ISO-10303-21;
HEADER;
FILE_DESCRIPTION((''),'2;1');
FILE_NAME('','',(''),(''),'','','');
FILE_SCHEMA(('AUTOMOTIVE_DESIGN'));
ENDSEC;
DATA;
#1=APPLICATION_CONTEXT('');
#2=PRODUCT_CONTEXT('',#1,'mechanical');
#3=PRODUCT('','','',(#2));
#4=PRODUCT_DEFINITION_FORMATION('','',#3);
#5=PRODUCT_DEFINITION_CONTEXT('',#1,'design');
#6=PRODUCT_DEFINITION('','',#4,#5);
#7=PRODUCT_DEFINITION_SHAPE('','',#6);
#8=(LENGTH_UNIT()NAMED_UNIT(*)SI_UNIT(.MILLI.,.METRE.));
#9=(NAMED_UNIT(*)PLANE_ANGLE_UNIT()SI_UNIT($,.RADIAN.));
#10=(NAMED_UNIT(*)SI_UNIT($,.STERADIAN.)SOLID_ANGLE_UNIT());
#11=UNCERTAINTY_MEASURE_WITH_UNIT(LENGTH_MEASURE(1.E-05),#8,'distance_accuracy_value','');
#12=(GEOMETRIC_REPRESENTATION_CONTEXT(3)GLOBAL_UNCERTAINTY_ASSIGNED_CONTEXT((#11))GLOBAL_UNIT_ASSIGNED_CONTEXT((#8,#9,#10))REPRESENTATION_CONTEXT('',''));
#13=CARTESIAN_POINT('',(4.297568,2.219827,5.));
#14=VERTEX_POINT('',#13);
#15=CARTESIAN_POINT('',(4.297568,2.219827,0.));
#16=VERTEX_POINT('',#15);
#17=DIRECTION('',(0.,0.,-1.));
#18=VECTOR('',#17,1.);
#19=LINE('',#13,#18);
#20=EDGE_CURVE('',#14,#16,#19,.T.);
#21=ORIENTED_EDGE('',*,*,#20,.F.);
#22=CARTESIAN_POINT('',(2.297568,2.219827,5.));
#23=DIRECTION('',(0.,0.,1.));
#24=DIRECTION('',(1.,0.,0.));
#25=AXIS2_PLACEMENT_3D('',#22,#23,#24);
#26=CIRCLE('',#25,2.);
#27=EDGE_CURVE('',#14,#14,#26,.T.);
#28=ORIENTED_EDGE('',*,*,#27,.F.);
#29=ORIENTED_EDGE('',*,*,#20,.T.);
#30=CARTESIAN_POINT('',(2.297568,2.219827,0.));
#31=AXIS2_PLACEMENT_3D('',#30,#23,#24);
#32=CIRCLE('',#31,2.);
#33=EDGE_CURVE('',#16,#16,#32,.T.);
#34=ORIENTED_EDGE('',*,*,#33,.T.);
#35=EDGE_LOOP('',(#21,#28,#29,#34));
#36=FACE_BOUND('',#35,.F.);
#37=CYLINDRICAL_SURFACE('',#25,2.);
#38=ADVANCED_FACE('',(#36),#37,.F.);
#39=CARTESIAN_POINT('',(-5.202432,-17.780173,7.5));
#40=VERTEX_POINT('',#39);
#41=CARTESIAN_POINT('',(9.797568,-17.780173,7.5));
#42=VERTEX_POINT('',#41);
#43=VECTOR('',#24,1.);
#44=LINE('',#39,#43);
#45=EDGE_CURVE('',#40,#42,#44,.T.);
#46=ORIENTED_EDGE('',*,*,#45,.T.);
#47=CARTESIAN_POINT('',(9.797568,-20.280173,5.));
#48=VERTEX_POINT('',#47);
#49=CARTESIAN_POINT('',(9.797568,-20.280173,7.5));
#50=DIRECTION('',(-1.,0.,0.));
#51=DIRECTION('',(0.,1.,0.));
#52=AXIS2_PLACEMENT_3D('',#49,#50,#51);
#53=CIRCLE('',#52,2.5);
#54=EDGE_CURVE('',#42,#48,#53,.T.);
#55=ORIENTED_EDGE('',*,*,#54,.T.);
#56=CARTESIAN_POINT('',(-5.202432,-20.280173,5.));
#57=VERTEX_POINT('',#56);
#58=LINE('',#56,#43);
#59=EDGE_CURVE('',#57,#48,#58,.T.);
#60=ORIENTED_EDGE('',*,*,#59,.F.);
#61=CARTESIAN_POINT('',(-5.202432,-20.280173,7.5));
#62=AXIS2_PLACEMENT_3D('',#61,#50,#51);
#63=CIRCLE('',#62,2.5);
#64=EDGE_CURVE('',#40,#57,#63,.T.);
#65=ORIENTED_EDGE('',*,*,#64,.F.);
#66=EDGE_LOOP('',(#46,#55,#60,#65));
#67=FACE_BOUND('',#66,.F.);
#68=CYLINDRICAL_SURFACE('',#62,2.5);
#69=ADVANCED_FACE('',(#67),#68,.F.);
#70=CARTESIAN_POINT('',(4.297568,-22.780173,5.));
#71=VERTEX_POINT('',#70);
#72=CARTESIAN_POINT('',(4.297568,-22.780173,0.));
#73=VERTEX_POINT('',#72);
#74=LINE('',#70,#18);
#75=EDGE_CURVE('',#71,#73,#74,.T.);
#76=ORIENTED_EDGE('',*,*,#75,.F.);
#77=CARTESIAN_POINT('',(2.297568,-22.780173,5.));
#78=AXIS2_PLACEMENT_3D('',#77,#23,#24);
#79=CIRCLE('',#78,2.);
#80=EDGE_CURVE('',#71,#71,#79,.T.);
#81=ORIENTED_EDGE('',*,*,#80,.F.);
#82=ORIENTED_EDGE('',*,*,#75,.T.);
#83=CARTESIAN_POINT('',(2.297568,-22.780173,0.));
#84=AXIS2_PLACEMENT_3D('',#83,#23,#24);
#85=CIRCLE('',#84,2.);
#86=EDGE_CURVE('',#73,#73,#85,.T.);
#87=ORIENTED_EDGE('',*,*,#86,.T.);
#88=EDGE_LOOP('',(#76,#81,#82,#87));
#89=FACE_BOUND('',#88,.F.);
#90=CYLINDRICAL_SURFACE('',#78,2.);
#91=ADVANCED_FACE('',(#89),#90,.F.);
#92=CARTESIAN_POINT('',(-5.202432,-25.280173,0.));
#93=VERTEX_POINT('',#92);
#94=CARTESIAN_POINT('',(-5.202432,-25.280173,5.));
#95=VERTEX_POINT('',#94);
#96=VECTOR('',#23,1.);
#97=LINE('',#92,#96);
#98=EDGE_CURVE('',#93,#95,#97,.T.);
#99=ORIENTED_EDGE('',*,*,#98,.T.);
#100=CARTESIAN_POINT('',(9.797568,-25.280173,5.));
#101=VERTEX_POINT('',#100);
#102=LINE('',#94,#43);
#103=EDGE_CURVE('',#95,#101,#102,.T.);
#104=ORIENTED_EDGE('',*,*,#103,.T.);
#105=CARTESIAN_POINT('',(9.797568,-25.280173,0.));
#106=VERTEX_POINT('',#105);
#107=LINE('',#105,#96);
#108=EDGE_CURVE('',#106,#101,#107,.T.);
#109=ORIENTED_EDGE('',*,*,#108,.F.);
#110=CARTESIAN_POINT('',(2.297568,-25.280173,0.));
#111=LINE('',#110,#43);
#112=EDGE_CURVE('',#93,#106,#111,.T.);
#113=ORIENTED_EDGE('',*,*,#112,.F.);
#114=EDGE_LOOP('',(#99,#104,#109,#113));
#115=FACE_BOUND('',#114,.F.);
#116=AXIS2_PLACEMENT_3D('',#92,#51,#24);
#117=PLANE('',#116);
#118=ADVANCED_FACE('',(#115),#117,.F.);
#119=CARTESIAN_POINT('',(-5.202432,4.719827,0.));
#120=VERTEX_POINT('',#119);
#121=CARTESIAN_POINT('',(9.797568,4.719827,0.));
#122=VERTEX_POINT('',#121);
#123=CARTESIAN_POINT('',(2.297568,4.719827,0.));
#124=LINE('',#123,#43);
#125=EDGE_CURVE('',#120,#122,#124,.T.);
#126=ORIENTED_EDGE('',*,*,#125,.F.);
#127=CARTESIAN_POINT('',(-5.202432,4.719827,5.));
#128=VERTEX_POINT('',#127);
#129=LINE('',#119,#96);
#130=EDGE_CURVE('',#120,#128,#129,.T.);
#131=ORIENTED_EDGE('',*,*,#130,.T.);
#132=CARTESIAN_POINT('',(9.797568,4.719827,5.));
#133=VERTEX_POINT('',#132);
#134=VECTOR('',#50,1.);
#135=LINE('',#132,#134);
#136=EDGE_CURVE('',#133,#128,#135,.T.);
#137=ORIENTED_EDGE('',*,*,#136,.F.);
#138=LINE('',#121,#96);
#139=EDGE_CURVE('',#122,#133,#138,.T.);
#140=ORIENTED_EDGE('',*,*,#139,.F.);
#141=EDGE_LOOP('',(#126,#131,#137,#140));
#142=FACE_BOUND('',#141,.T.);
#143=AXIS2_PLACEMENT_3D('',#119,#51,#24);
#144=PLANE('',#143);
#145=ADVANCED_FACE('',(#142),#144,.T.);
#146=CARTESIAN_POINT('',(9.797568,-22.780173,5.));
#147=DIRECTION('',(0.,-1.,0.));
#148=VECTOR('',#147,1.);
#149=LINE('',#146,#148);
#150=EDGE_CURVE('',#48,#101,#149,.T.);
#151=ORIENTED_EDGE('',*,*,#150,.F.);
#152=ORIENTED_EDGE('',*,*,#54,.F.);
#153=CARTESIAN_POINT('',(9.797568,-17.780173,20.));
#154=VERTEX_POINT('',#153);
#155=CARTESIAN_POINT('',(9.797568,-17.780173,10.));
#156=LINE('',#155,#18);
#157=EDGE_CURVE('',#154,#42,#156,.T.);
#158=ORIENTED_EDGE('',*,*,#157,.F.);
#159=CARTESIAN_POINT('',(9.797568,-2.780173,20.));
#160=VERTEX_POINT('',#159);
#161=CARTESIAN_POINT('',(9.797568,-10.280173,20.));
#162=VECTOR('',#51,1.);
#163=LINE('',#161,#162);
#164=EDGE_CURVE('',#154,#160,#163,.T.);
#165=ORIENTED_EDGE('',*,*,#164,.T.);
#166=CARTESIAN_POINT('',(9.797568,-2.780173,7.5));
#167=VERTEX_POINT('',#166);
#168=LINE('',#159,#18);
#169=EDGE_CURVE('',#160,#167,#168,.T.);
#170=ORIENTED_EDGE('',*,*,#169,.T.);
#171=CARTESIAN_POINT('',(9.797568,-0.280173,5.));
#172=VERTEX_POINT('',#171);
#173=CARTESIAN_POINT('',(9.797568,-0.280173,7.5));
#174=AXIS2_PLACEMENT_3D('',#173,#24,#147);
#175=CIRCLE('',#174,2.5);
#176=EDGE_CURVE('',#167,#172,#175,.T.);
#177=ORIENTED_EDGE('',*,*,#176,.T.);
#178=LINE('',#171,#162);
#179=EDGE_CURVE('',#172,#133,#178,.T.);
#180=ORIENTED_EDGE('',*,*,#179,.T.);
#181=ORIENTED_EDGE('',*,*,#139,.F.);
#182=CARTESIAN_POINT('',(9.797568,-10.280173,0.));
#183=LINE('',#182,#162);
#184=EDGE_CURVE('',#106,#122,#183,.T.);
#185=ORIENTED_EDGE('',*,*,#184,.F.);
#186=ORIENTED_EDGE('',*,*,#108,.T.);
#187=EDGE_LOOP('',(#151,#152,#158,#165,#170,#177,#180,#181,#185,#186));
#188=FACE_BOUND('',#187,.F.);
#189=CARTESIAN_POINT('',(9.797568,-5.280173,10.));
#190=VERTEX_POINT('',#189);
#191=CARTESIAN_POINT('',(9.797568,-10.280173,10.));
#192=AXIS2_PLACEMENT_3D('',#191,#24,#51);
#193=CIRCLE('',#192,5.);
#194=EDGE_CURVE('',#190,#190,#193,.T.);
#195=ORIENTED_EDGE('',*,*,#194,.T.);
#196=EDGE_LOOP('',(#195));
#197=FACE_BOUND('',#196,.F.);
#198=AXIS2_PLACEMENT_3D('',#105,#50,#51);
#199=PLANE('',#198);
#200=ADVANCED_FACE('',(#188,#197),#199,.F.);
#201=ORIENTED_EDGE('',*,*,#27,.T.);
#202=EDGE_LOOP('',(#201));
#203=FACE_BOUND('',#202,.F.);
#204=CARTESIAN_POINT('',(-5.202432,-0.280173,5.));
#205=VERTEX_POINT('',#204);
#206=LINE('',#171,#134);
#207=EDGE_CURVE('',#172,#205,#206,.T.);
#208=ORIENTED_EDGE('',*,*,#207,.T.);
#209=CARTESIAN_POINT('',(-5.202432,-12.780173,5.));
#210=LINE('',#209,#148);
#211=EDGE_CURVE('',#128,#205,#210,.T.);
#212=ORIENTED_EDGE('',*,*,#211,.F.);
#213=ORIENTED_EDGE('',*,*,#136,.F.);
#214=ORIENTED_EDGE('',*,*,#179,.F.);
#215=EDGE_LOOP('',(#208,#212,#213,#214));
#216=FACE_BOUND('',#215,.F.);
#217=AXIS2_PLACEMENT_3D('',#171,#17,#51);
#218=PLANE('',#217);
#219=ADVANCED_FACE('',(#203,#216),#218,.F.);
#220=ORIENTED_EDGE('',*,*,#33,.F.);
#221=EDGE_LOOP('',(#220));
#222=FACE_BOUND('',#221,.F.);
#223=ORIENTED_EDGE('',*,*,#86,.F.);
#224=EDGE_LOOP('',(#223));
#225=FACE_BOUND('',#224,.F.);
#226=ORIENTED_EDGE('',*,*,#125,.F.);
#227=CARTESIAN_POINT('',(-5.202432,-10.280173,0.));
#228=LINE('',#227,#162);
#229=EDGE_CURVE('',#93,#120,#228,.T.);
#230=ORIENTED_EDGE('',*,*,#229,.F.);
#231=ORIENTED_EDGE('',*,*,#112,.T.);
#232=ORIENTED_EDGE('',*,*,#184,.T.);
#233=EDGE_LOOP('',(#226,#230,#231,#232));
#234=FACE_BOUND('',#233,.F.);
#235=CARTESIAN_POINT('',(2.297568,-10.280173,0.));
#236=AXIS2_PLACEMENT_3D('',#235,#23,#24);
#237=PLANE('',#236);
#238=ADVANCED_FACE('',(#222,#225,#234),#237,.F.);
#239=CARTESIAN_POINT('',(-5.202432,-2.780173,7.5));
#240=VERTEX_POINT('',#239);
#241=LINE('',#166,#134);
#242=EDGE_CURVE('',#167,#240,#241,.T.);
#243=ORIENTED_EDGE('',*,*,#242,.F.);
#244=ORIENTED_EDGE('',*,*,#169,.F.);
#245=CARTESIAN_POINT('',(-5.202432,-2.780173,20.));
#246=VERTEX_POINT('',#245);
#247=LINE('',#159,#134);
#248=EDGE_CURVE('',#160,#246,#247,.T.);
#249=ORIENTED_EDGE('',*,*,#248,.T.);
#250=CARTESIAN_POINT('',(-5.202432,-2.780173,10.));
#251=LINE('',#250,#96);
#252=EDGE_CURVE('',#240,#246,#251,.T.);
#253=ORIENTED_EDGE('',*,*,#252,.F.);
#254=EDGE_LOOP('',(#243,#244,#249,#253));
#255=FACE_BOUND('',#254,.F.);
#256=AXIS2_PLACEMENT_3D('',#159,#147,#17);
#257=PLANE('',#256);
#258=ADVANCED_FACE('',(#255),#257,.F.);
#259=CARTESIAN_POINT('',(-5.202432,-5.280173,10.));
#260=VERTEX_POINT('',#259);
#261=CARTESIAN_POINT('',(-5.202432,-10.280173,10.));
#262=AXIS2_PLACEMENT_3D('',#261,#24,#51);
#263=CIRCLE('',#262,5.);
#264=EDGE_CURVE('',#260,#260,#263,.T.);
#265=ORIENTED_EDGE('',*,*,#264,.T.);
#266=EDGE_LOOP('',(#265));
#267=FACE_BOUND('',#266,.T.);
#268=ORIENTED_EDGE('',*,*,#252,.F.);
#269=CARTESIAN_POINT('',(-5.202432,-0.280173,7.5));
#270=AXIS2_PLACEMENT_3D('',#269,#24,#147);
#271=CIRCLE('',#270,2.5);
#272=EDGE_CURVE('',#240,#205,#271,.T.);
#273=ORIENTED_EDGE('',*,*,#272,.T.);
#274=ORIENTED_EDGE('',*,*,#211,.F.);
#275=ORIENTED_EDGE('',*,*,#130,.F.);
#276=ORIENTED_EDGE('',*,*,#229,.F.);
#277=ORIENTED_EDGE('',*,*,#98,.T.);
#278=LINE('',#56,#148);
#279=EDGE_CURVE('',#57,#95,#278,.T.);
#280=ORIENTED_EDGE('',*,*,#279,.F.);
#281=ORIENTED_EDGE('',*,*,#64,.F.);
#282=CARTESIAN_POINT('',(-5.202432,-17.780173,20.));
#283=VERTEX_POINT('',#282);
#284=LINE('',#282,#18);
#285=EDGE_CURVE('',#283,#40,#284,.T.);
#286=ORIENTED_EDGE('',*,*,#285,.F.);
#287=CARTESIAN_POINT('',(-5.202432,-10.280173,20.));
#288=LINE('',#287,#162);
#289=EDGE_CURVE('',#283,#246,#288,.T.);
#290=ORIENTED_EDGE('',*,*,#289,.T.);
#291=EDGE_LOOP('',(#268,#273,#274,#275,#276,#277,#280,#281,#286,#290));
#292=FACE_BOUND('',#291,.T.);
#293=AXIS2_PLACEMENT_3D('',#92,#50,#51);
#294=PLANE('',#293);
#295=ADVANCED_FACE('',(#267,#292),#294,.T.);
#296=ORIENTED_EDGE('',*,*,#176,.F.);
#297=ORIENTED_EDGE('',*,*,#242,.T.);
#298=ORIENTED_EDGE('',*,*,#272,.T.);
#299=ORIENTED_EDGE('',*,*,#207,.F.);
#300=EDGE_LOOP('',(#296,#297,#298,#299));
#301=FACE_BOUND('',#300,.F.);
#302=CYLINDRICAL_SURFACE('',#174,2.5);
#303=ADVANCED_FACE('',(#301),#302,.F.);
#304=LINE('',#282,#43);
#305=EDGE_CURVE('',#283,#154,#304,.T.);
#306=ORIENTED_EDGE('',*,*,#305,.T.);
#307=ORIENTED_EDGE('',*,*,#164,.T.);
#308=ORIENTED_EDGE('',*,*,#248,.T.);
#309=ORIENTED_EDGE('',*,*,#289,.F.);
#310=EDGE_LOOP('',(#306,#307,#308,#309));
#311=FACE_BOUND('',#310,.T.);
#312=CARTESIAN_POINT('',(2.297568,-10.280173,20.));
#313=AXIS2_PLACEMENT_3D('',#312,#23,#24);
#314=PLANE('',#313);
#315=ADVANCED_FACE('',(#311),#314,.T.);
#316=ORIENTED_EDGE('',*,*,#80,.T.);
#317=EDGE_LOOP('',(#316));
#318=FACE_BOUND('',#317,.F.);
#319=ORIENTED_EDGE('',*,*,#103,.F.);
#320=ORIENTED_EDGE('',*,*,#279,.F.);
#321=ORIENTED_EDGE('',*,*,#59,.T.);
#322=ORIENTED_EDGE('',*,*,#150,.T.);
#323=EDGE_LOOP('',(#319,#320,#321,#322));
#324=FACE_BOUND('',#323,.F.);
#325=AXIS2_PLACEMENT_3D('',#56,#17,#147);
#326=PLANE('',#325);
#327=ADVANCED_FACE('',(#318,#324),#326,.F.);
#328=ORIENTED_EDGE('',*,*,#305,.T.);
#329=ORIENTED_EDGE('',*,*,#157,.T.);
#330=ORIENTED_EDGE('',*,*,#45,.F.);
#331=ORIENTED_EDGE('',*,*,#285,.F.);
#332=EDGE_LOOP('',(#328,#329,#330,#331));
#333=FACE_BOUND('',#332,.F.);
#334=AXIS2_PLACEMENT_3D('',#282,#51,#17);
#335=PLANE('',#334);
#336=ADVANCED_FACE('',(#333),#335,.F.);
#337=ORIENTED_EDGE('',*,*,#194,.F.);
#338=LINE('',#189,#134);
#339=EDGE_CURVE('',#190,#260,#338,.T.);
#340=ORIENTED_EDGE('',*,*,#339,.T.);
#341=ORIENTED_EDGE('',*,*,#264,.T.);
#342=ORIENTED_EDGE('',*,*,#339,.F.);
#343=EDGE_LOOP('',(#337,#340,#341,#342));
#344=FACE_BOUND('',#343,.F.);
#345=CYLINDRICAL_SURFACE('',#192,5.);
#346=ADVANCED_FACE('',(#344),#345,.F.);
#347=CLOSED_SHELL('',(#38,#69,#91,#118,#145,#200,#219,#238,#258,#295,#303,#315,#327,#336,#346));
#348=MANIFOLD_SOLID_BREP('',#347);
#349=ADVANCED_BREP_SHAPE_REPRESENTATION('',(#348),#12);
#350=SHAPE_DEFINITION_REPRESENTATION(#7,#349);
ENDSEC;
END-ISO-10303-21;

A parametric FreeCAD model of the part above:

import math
import FreeCAD as App
import Part
import Sketcher

V = App.Vector
Q = App.Units.Quantity


def add_polygon(sketch, points):
    """Adds a closed chain of lines whose ends are joined by coincident constraints."""
    first, n = sketch.GeometryCount, len(points)
    for a, b in zip(points, points[1:] + points[:1]):
        sketch.addGeometry(Part.LineSegment(App.Vector(*a, 0), App.Vector(*b, 0)), False)
    for i in range(n):
        sketch.addConstraint(Sketcher.Constraint("Coincident", first + i, 2, first + (i + 1) % n, 1))

doc = App.newDocument("Part")
body = doc.addObject("PartDesign::Body", "Body")

# Sketch on XY plane
sketch1 = body.newObject("Sketcher::SketchObject", "Sketch")
sketch1.AttachmentSupport = (doc.getObject("XY_Plane"), [""])
sketch1.MapMode = "FlatFace"
add_polygon(sketch1, [(-5, 5), (-5, -25), (10, -25), (10, 5)])  # lines 0-3
sketch1.addConstraint([
    Sketcher.Constraint("Vertical", 0),
    Sketcher.Constraint("Horizontal", 1),
    Sketcher.Constraint("Vertical", 2),
    Sketcher.Constraint("Horizontal", 3),
    Sketcher.Constraint("DistanceX", 1, 1, 1, 2, Q("15 mm")),
    Sketcher.Constraint("DistanceY", 0, 2, 0, 1, Q("30 mm")),
    Sketcher.Constraint("DistanceX", 0, 2, -1, 1, Q("5.202432 mm")),
    Sketcher.Constraint("DistanceY", 0, 2, -1, 1, Q("25.280173 mm")),
])
pad1 = body.newObject("PartDesign::Pad", "Pad")
pad1.Profile = sketch1
pad1.Length = 20

# Sketch on YZ plane
sketch2 = body.newObject("Sketcher::SketchObject", "Sketch001")
sketch2.AttachmentSupport = (doc.getObject("YZ_Plane"), [""])
sketch2.MapMode = "FlatFace"
sketch2.AttachmentOffset = App.Placement(V(0, 0, 9.797568), App.Rotation())
sketch2.addGeometry(Part.Circle(V(-10, 10, 0), V(0, 0, 1), 5), False)
sketch2.addConstraint([
    Sketcher.Constraint("Diameter", 0, Q("10 mm")),
    Sketcher.Constraint("DistanceY", -1, 1, 0, 3, Q("10 mm")),
    Sketcher.Constraint("DistanceX", 0, 3, -1, 1, Q("10.280173 mm")),
])
pocket1 = body.newObject("PartDesign::Pocket", "Pocket")
pocket1.Profile = sketch2
pocket1.Type = "ThroughAll"

# Sketch on YZ plane
sketch3 = body.newObject("Sketcher::SketchObject", "Sketch002")
sketch3.AttachmentSupport = (doc.getObject("YZ_Plane"), [""])
sketch3.MapMode = "FlatFace"
sketch3.AttachmentOffset = App.Placement(V(0, 0, -5.202432), App.Rotation())
sketch3.addGeometry([
    Part.LineSegment(V(-20.3, 5, 0), V(-25.3, 5, 0)),  # 0
    Part.LineSegment(V(-25.3, 5, 0), V(-25.3, 20, 0)),  # 1
    Part.LineSegment(V(-25.3, 20, 0), V(-17.8, 20, 0)),  # 2
    Part.LineSegment(V(-17.8, 20, 0), V(-17.8, 7.5, 0)),  # 3
    Part.ArcOfCircle(Part.Circle(V(-20.3, 7.5, 0), V(0, 0, 1), 2.5), math.radians(-90), math.radians(0)),  # 4
], False)
sketch3.addConstraint([
    Sketcher.Constraint("Coincident", 0, 2, 1, 1),
    Sketcher.Constraint("Coincident", 1, 2, 2, 1),
    Sketcher.Constraint("Coincident", 2, 2, 3, 1),
    Sketcher.Constraint("Tangent", 3, 2, 4, 2),
    Sketcher.Constraint("Tangent", 4, 1, 0, 1),
    Sketcher.Constraint("Horizontal", 0),
    Sketcher.Constraint("Vertical", 1),
    Sketcher.Constraint("Horizontal", 2),
    Sketcher.Constraint("Vertical", 3),
    Sketcher.Constraint("Radius", 4, Q("2.5 mm")),
    Sketcher.Constraint("DistanceX", 0, 2, 0, 1, Q("5 mm")),
    Sketcher.Constraint("DistanceY", 1, 1, 1, 2, Q("15 mm")),
    Sketcher.Constraint("DistanceY", -1, 1, 0, 2, Q("5 mm")),
    Sketcher.Constraint("DistanceX", 4, 3, -1, 1, Q("20.280173 mm")),
])
pocket2 = body.newObject("PartDesign::Pocket", "Pocket001")
pocket2.Profile = sketch3
pocket2.Type = "ThroughAll"
pocket2.Reversed = True

# Sketch on YZ plane
sketch4 = body.newObject("Sketcher::SketchObject", "Sketch003")
sketch4.AttachmentSupport = (doc.getObject("YZ_Plane"), [""])
sketch4.MapMode = "FlatFace"
sketch4.AttachmentOffset = App.Placement(V(0, 0, 9.797568), App.Rotation())
sketch4.addGeometry([
    Part.LineSegment(V(-0.3, 5, 0), V(4.7, 5, 0)),  # 0
    Part.LineSegment(V(4.7, 5, 0), V(4.7, 20, 0)),  # 1
    Part.LineSegment(V(4.7, 20, 0), V(-2.8, 20, 0)),  # 2
    Part.LineSegment(V(-2.8, 20, 0), V(-2.8, 7.5, 0)),  # 3
    Part.ArcOfCircle(Part.Circle(V(-0.3, 7.5, 0), V(0, 0, 1), 2.5), math.radians(180), math.radians(270)),  # 4
], False)
sketch4.addConstraint([
    Sketcher.Constraint("Coincident", 0, 2, 1, 1),
    Sketcher.Constraint("Coincident", 1, 2, 2, 1),
    Sketcher.Constraint("Coincident", 2, 2, 3, 1),
    Sketcher.Constraint("Tangent", 3, 2, 4, 1),
    Sketcher.Constraint("Tangent", 4, 2, 0, 1),
    Sketcher.Constraint("Horizontal", 0),
    Sketcher.Constraint("Vertical", 1),
    Sketcher.Constraint("Horizontal", 2),
    Sketcher.Constraint("Vertical", 3),
    Sketcher.Constraint("Radius", 4, Q("2.5 mm")),
    Sketcher.Constraint("DistanceX", 0, 1, 0, 2, Q("5 mm")),
    Sketcher.Constraint("DistanceY", 1, 1, 1, 2, Q("15 mm")),
    Sketcher.Constraint("DistanceY", -1, 1, 0, 2, Q("5 mm")),
    Sketcher.Constraint("DistanceX", 4, 3, -1, 1, Q("0.280173 mm")),
])
pocket3 = body.newObject("PartDesign::Pocket", "Pocket002")
pocket3.Profile = sketch4
pocket3.Type = "ThroughAll"

# Sketch on XY plane
sketch5 = body.newObject("Sketcher::SketchObject", "Sketch004")
sketch5.AttachmentSupport = (doc.getObject("XY_Plane"), [""])
sketch5.MapMode = "FlatFace"
sketch5.AttachmentOffset = App.Placement(V(0, 0, 5), App.Rotation())
sketch5.addGeometry(Part.Circle(V(2.3, 2.2, 0), V(0, 0, 1), 2), False)
sketch5.addConstraint([
    Sketcher.Constraint("Diameter", 0, Q("4 mm")),
    Sketcher.Constraint("DistanceX", -1, 1, 0, 3, Q("2.297568 mm")),
    Sketcher.Constraint("DistanceY", -1, 1, 0, 3, Q("2.219827 mm")),
])
pocket4 = body.newObject("PartDesign::Pocket", "Pocket003")
pocket4.Profile = sketch5
pocket4.Type = "ThroughAll"

# Sketch on XY plane
sketch6 = body.newObject("Sketcher::SketchObject", "Sketch005")
sketch6.AttachmentSupport = (doc.getObject("XY_Plane"), [""])
sketch6.MapMode = "FlatFace"
sketch6.AttachmentOffset = App.Placement(V(0, 0, 5), App.Rotation())
sketch6.addGeometry(Part.Circle(V(2.3, -22.8, 0), V(0, 0, 1), 2), False)
sketch6.addConstraint([
    Sketcher.Constraint("Diameter", 0, Q("4 mm")),
    Sketcher.Constraint("DistanceX", -1, 1, 0, 3, Q("2.297568 mm")),
    Sketcher.Constraint("DistanceY", 0, 3, -1, 1, Q("22.780173 mm")),
])
pocket5 = body.newObject("PartDesign::Pocket", "Pocket004")
pocket5.Profile = sketch6
pocket5.Type = "ThroughAll"

doc.recompute()
